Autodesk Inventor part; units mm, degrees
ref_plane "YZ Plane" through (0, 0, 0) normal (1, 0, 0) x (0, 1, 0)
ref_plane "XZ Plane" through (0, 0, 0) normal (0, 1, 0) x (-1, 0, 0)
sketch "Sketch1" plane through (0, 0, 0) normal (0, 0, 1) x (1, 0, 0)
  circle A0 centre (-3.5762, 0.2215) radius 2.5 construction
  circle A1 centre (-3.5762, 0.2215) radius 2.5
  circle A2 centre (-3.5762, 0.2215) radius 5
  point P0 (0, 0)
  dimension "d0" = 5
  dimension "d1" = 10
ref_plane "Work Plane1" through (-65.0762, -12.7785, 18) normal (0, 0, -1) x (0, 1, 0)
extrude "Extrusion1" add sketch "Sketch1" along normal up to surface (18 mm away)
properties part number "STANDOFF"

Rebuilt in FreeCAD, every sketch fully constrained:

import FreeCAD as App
import Part
import Sketcher

V = App.Vector

doc = App.newDocument("Part")
body = doc.addObject("PartDesign::Body", "Body")

# Sketch on XY plane
sketch1 = body.newObject("Sketcher::SketchObject", "Sketch")
sketch1.AttachmentSupport = (doc.getObject("XY_Plane"), [""])
sketch1.MapMode = "FlatFace"
sketch1.addGeometry(Part.Circle(V(-3.6, 0.2, 0), V(0, 0, 1), 5), False)
sketch1.addGeometry(Part.Circle(V(-3.6, 0.2, 0), V(0, 0, 1), 2.5), False)
sketch1.addConstraint(Sketcher.Constraint("Coincident", 1, 3, 0, 3))
sketch1.addConstraint(Sketcher.Constraint("Diameter", 0, 10.0))
sketch1.addConstraint(Sketcher.Constraint("Diameter", 1, 5.0))
sketch1.addConstraint(Sketcher.Constraint("DistanceX", 0, 3, -1, 1, 3.5762))
sketch1.addConstraint(Sketcher.Constraint("DistanceY", -1, 1, 0, 3, 0.2215))
pad1 = body.newObject("PartDesign::Pad", "Pad")
pad1.Profile = sketch1
pad1.Length = 18

doc.recompute()
